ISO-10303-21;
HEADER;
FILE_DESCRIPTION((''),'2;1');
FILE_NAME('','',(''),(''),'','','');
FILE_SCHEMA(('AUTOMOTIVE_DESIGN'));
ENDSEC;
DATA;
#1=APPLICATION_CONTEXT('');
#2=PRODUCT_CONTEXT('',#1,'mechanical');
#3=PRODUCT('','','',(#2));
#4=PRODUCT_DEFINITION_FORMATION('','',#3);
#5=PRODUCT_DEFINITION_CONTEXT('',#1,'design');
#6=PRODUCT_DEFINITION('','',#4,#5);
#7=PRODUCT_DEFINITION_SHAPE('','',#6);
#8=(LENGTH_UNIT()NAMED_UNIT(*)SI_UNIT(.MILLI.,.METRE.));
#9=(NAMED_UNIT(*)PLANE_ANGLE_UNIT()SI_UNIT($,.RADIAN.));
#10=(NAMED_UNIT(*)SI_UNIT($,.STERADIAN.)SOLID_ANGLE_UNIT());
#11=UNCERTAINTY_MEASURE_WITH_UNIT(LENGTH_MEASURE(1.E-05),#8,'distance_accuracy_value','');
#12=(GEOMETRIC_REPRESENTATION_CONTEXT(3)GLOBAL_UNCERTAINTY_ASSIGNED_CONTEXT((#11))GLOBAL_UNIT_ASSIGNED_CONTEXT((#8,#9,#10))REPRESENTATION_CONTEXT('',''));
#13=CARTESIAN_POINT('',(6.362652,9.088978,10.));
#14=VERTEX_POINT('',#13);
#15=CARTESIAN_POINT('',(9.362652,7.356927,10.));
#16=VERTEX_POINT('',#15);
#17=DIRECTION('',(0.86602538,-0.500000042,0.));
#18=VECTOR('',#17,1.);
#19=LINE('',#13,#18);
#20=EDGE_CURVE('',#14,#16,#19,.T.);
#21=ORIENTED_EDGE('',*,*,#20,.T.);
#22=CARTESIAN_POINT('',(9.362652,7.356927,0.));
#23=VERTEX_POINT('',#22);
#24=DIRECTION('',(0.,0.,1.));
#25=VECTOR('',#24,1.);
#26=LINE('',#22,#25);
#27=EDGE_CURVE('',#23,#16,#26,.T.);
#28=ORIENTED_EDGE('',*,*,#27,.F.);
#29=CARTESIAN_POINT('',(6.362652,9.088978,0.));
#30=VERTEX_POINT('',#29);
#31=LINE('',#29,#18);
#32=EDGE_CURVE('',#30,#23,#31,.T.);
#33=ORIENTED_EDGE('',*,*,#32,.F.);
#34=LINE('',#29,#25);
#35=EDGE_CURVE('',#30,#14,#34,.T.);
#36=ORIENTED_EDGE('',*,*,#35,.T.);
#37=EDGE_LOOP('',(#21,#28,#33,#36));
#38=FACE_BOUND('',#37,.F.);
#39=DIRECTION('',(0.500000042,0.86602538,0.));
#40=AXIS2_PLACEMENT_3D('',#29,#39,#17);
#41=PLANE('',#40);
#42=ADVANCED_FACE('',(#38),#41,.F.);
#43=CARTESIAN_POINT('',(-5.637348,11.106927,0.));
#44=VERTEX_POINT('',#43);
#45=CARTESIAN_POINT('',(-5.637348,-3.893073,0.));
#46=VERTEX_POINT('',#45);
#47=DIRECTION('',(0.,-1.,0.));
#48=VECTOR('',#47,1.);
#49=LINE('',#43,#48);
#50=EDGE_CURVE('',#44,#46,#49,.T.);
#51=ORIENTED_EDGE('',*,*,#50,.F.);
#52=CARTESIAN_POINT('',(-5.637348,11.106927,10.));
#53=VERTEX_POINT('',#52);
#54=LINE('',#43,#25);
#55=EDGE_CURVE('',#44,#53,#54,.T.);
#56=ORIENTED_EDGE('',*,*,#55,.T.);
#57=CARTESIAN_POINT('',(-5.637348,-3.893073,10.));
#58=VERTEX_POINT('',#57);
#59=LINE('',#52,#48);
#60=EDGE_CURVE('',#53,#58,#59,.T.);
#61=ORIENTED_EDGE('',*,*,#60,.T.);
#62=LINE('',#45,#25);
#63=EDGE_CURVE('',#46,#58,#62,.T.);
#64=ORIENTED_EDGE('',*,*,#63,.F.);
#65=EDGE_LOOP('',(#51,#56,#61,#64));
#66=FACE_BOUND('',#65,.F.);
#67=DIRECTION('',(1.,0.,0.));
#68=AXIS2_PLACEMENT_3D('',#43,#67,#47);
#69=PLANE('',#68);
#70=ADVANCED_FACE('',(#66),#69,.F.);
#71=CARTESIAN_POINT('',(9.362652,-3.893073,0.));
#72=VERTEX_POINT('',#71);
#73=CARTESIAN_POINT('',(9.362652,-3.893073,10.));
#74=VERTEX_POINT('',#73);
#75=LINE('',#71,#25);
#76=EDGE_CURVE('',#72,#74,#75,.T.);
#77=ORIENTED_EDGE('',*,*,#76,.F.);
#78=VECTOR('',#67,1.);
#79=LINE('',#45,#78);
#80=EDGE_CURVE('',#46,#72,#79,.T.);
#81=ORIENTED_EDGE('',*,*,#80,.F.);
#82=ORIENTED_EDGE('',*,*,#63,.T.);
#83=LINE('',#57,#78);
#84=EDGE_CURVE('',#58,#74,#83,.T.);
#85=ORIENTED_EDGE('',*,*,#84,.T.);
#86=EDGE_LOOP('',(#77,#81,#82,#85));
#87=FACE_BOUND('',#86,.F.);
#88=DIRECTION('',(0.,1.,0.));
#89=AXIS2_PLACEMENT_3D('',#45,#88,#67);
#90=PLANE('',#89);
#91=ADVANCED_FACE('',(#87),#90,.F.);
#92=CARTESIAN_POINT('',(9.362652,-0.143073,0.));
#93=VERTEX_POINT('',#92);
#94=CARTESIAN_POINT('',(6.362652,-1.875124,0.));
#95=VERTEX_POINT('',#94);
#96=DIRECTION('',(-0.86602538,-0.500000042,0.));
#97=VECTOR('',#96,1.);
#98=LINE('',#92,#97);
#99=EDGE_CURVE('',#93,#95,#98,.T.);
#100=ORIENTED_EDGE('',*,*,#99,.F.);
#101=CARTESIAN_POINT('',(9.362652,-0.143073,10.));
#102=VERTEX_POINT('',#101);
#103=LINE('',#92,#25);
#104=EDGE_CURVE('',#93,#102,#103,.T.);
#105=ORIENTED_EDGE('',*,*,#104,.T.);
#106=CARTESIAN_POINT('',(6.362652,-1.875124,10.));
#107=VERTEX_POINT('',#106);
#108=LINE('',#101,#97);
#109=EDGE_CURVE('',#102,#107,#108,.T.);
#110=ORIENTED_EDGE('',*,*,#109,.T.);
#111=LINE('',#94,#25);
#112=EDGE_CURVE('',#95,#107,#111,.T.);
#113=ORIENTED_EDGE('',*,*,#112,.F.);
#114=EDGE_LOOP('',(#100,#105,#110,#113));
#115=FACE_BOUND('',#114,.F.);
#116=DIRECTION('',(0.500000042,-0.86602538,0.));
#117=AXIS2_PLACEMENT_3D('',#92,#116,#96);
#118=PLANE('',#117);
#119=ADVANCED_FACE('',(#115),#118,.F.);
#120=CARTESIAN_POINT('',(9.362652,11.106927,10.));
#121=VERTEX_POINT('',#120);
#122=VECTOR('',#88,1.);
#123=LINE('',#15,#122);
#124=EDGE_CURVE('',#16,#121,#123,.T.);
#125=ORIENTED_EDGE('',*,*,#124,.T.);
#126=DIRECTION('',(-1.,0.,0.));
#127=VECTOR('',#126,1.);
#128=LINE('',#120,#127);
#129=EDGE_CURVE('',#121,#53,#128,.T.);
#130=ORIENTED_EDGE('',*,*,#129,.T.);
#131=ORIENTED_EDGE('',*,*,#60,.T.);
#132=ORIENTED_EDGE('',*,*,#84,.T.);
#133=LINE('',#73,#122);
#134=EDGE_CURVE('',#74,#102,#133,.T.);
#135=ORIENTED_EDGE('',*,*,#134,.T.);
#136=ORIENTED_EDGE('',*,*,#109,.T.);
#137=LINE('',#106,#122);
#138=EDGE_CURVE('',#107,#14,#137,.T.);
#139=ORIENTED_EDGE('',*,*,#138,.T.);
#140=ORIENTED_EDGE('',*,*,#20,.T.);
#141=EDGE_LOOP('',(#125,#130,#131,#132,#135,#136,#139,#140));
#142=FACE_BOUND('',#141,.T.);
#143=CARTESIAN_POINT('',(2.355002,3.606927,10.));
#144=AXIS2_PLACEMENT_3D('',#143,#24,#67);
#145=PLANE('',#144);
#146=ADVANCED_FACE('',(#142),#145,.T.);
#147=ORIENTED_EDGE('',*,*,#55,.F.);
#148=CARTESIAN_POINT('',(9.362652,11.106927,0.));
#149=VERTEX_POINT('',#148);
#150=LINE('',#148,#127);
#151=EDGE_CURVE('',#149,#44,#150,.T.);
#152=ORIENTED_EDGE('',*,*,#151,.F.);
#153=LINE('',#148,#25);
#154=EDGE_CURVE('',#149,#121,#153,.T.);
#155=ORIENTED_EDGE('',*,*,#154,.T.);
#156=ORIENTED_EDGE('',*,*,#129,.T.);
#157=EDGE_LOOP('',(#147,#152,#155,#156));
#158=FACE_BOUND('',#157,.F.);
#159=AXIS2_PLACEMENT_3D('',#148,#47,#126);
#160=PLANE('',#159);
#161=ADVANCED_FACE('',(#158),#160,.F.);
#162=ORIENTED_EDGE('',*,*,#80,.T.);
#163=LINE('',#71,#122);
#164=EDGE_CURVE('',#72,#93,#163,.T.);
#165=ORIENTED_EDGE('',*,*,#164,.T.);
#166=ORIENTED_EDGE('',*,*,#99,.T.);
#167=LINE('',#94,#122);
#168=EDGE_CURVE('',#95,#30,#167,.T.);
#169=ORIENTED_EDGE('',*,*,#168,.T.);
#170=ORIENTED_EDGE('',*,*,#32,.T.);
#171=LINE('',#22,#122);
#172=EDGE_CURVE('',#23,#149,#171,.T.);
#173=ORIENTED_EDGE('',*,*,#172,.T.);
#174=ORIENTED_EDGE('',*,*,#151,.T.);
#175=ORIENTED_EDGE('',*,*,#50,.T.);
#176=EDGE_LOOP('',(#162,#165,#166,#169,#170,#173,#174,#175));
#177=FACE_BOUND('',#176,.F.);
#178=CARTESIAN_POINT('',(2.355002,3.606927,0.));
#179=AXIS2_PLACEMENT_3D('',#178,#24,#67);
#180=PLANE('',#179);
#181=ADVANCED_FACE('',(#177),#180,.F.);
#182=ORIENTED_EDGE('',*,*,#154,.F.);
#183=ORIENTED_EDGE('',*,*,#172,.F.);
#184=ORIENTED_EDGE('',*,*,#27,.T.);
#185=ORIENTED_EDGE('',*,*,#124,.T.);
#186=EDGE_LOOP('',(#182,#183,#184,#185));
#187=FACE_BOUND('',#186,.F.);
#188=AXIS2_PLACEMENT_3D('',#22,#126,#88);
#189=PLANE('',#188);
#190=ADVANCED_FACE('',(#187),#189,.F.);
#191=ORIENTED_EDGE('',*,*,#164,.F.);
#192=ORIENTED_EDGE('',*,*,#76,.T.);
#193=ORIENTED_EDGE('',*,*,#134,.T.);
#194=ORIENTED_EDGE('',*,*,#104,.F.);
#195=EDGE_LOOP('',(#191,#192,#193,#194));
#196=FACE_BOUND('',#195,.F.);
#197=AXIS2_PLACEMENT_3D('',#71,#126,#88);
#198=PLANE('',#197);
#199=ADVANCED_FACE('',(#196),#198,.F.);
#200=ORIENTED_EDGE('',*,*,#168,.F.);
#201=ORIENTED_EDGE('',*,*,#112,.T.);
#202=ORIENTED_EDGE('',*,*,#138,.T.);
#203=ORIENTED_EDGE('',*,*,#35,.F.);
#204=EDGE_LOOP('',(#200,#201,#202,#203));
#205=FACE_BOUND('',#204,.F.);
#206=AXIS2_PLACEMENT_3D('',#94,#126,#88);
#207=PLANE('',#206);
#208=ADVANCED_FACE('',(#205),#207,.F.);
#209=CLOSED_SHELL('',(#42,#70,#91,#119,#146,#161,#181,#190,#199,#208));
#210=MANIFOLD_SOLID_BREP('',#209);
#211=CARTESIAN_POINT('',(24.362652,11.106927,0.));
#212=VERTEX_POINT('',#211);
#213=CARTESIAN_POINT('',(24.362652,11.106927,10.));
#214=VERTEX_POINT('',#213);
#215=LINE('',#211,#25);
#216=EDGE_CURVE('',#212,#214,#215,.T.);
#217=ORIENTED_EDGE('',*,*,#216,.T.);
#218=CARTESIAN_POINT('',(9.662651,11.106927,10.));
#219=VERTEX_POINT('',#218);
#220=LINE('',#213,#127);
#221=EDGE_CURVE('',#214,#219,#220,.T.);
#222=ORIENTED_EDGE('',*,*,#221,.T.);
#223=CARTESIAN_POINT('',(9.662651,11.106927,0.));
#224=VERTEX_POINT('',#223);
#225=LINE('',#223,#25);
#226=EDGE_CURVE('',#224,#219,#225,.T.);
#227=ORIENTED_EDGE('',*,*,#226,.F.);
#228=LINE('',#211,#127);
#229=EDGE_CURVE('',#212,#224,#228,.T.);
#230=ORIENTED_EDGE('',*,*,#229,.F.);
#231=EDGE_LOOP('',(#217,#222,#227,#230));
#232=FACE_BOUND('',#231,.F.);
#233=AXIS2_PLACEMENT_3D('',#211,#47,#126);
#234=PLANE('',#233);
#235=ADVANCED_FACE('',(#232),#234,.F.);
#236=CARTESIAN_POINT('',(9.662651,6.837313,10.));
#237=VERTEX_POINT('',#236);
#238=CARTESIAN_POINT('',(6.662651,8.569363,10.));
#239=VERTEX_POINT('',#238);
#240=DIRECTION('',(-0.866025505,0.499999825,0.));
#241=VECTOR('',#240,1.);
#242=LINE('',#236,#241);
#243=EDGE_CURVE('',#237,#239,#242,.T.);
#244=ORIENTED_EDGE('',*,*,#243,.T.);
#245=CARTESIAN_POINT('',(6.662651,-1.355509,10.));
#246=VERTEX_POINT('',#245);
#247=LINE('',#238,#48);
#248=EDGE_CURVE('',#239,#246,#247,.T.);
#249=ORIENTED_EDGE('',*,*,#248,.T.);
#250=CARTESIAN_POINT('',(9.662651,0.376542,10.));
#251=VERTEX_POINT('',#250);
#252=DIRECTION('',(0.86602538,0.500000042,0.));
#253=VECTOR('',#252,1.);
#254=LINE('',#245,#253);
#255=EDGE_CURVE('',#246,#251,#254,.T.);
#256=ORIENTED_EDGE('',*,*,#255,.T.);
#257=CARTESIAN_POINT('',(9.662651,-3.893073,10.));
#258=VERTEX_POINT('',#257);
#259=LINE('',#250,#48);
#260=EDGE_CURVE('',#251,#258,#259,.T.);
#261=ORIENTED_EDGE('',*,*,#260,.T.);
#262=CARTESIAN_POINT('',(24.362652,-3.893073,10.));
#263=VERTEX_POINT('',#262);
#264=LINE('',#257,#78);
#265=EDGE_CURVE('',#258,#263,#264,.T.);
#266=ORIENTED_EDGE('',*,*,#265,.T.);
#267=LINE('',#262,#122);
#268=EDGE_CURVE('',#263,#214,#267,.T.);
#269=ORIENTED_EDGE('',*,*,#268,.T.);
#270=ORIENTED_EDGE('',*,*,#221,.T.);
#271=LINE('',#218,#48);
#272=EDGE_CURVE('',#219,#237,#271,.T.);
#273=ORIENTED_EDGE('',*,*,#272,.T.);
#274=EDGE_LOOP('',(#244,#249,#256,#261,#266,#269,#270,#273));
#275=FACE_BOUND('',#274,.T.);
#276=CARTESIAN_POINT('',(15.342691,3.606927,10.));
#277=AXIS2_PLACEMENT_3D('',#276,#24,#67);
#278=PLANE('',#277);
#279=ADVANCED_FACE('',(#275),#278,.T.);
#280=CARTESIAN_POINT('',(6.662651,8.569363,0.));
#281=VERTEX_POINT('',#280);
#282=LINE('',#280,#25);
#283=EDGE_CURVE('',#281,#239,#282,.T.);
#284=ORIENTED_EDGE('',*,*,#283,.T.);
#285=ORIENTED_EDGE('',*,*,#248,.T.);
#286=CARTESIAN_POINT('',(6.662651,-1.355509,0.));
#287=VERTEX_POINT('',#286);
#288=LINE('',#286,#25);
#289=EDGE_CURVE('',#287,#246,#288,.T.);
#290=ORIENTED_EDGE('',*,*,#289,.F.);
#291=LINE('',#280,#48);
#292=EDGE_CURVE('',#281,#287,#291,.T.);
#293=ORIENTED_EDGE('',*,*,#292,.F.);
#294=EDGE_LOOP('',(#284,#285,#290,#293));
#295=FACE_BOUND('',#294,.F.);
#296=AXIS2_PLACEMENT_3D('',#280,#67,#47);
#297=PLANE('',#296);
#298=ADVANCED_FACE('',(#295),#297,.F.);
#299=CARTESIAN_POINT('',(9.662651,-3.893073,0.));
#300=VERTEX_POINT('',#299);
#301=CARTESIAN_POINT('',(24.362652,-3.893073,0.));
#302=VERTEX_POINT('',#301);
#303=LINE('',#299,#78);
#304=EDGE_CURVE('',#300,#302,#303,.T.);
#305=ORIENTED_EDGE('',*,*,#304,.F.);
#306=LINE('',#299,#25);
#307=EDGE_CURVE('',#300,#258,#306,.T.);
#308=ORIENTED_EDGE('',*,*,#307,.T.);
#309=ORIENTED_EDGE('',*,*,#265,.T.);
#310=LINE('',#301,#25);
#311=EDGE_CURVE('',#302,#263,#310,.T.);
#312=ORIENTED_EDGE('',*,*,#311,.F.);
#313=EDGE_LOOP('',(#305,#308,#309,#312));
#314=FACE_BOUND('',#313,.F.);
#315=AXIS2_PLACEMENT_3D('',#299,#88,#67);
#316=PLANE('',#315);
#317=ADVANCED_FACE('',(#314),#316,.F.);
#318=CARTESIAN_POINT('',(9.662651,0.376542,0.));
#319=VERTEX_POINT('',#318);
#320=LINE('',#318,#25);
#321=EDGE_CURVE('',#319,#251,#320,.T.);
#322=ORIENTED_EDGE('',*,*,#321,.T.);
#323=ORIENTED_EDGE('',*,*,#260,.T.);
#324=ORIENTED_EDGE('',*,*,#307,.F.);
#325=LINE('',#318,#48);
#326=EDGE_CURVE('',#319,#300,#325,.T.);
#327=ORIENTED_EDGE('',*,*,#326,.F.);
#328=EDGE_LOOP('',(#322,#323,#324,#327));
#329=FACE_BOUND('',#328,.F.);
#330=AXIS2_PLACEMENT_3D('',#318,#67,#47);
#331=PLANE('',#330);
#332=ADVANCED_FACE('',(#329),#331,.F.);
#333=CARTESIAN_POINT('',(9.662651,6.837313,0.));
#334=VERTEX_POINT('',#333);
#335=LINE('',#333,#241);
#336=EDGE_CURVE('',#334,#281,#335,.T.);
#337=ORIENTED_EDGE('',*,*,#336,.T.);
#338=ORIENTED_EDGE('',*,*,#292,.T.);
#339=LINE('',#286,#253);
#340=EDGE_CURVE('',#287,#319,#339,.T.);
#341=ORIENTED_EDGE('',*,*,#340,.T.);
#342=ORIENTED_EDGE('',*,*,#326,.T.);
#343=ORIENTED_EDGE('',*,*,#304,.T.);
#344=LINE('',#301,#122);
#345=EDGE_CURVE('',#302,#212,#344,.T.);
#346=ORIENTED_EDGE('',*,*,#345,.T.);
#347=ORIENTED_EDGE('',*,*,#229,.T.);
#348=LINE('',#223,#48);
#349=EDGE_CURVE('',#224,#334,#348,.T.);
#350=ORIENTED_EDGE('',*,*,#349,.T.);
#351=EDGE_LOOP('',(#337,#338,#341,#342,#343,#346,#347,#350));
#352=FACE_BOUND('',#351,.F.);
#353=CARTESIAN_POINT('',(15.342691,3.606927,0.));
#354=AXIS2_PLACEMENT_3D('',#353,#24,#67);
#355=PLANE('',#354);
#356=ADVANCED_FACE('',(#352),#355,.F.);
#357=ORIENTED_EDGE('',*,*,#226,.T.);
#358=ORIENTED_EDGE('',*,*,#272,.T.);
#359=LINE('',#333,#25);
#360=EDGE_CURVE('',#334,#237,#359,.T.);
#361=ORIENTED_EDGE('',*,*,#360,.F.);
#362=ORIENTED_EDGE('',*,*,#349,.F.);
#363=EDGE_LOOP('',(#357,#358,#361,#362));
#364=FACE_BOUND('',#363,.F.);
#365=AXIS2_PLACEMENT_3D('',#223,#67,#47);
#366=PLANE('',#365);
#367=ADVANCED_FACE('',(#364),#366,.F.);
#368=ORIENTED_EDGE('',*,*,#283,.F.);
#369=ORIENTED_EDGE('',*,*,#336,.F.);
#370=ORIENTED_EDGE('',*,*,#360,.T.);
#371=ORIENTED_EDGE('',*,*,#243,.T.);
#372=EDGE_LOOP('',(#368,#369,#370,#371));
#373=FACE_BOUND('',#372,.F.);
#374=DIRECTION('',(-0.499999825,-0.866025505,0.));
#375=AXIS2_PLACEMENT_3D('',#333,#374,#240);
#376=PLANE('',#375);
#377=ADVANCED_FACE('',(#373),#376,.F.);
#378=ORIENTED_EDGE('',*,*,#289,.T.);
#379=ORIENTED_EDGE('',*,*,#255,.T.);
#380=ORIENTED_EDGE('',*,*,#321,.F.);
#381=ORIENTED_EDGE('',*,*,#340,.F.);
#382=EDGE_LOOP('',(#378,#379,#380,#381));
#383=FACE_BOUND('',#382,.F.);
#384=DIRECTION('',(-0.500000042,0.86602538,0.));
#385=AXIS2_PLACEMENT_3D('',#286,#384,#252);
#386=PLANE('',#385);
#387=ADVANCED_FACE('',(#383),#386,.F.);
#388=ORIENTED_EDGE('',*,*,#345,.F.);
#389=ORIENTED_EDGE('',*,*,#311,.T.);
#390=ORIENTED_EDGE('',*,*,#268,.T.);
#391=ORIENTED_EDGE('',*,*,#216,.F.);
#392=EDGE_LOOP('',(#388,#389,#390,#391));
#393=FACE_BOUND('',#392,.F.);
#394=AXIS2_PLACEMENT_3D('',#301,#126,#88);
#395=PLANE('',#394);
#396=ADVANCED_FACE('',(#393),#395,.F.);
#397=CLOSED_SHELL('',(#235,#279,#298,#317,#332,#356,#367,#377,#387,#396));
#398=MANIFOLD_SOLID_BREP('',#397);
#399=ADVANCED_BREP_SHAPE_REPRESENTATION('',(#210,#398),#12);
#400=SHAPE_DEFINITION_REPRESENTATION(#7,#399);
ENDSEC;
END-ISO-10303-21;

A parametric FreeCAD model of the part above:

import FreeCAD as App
import Part
import Sketcher
from FreeCAD import Vector
Q = App.Units.Quantity


def add_polygon(sketch, points):
    """Adds a closed chain of lines whose ends are joined by coincident constraints."""
    first, n = sketch.GeometryCount, len(points)
    for a, b in zip(points, points[1:] + points[:1]):
        sketch.addGeometry(Part.LineSegment(App.Vector(*a, 0), App.Vector(*b, 0)), False)
    for i in range(n):
        sketch.addConstraint(Sketcher.Constraint("Coincident", first + i, 2, first + (i + 1) % n, 1))

doc = App.newDocument("Part")
body = doc.addObject("PartDesign::Body", "Body")

# Sketch on XY plane
sketch1 = doc.addObject("Sketcher::SketchObject", "Sketch")
body.addObject(sketch1)
sketch1.AttachmentSupport = (doc.XY_Plane, [""])
sketch1.MapMode = "FlatFace"
add_polygon(sketch1, [(9.4, 11.1), (-5.6, 11.1), (-5.6, -3.9), (9.4, -3.9), (9.4, -0.1), (6.4, -1.9), (6.4, 9.1), (9.4, 7.4)])  # lines 0-7
sketch1.addConstraint([
    Sketcher.Constraint("Horizontal", 0),
    Sketcher.Constraint("Vertical", 1),
    Sketcher.Constraint("Horizontal", 2),
    Sketcher.Constraint("Vertical", 3),
    Sketcher.Constraint("Vertical", 5),
    Sketcher.Constraint("Vertical", 7),
    Sketcher.Constraint("Vertical", 3, 2, 6, 2),
    Sketcher.Constraint("Equal", 2, 1),
    Sketcher.Constraint("Equal", 3, 7),
    Sketcher.Constraint("Equal", 4, 6),
    Sketcher.Constraint("DistanceX", 0, 2, 0, 1, Q("15 mm")),
    Sketcher.Constraint("Angle", 4, Q("-149.999997 deg")),
    Sketcher.Constraint("DistanceX", 4, 2, 3, 2, Q("3 mm")),
    Sketcher.Constraint("DistanceY", 3, 1, 3, 2, Q("3.75 mm")),
    Sketcher.Constraint("DistanceX", 0, 2, -1, 1, Q("5.637348 mm")),
    Sketcher.Constraint("DistanceY", -1, 1, 0, 2, Q("11.106927 mm")),
])
pad1 = doc.addObject("PartDesign::Pad", "Pad")
body.addObject(pad1)
pad1.Profile = sketch1
pad1.Length = 10
body2 = doc.addObject("PartDesign::Body", "Body001")

# Sketch on XY plane
sketch2 = doc.addObject("Sketcher::SketchObject", "Sketch001")
body2.addObject(sketch2)
sketch2.AttachmentSupport = (doc.getObject("XY_Plane001"), [""])
sketch2.MapMode = "FlatFace"
add_polygon(sketch2, [(24.4, 11.1), (9.7, 11.1), (9.7, 6.8), (6.7, 8.6), (6.7, -1.4), (9.7, 0.4), (9.7, -3.9), (24.4, -3.9)])  # lines 0-7
sketch2.addConstraint([
    Sketcher.Constraint("Horizontal", 0),
    Sketcher.Constraint("Vertical", 1),
    Sketcher.Constraint("Vertical", 3),
    Sketcher.Constraint("Vertical", 5),
    Sketcher.Constraint("Horizontal", 6),
    Sketcher.Constraint("Vertical", 7),
    Sketcher.Constraint("Vertical", 1, 2, 4, 2),
    Sketcher.Constraint("Equal", 1, 5),
    Sketcher.Constraint("Equal", 2, 4),
    Sketcher.Constraint("DistanceY", 7, 1, 7, 2, Q("15 mm")),
    Sketcher.Constraint("Angle", 2, Q("150.000012 deg")),
    Sketcher.Constraint("DistanceX", 0, 2, 0, 1, Q("14.700001 mm")),
    Sketcher.Constraint("DistanceX", 2, 2, 1, 2, Q("3 mm")),
    Sketcher.Constraint("DistanceY", 3, 2, 3, 1, Q("9.924872 mm")),
    Sketcher.Constraint("DistanceX", -1, 1, 0, 2, Q("9.662651 mm")),
    Sketcher.Constraint("DistanceY", 3, 2, -1, 1, Q("1.355509 mm")),
])
pad2 = doc.addObject("PartDesign::Pad", "Pad001")
body2.addObject(pad2)
pad2.Profile = sketch2
pad2.Length = 10

doc.recompute()
